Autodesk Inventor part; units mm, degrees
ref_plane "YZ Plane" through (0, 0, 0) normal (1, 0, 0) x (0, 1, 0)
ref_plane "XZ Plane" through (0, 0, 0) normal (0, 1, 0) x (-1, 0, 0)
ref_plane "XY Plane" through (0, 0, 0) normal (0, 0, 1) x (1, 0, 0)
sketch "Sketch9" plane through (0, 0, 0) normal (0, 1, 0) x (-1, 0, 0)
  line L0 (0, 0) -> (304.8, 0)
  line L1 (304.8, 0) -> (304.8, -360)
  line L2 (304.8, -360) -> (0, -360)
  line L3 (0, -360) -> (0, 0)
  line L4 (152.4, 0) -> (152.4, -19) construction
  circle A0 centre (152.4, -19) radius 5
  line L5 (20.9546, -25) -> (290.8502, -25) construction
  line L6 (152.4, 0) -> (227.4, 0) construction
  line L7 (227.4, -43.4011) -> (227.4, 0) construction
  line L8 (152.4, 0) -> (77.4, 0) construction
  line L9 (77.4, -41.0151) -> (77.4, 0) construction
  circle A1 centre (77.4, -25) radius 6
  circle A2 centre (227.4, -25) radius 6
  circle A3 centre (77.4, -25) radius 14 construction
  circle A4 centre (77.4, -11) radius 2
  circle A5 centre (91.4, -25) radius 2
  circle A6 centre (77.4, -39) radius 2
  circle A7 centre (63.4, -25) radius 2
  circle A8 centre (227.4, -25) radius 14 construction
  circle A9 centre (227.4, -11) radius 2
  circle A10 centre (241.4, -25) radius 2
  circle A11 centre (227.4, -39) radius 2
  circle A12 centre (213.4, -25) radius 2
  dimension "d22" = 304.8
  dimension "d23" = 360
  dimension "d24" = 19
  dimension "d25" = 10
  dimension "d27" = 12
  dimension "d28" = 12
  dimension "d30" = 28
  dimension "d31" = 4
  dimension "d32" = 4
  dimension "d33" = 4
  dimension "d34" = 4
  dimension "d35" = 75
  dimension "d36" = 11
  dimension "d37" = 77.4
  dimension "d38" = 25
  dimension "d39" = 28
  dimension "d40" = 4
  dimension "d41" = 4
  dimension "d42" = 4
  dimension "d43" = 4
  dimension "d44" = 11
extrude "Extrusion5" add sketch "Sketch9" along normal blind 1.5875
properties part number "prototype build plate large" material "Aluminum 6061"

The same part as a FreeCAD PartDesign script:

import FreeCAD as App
import Part
import Sketcher

doc = App.newDocument("Part")
params = doc.addObject("Spreadsheet::Sheet", "Params")
for row, (alias, value) in enumerate([
    ("sketch1_diameter", "4 mm"),
    ("sketch1_diameter2", "12 mm"),
    ("sketch1_diameter3", "10 mm"),
    ("sketch1_height", "360 mm"),
    ("sketch1_width", "304.8 mm"),
    ("pad1_length", "1.5875 mm"),
], start=1):
    params.set(f"A{row}", alias)
    params.set(f"B{row}", "=" + value)
    params.setAlias(f"B{row}", alias)

body = doc.addObject("PartDesign::Body", "Body")

sketch1 = body.newObject("Sketcher::SketchObject", "Sketch")
sketch1.AttachmentSupport = (doc.getObject("XZ_Plane"), [""])
sketch1.MapMode = "FlatFace"
sketch1.addGeometry(Part.LineSegment(App.Vector(-304.8, 0, 0), App.Vector(0, 0, 0)), False)
sketch1.addGeometry(Part.LineSegment(App.Vector(0, 0, 0), App.Vector(0, -360, 0)), False)
sketch1.addGeometry(Part.LineSegment(App.Vector(0, -360, 0), App.Vector(-304.8, -360, 0)), False)
sketch1.addGeometry(Part.LineSegment(App.Vector(-304.8, -360, 0), App.Vector(-304.8, 0, 0)), False)
sketch1.addGeometry(Part.Circle(App.Vector(-63.4, -25, 0), App.Vector(0, 0, 1), 2), False)
sketch1.addGeometry(Part.Circle(App.Vector(-77.4, -39, 0), App.Vector(0, 0, 1), 2), False)
sketch1.addGeometry(Part.Circle(App.Vector(-77.4, -25, 0), App.Vector(0, 0, 1), 6), False)
sketch1.addGeometry(Part.Circle(App.Vector(-91.4, -25, 0), App.Vector(0, 0, 1), 2), False)
sketch1.addGeometry(Part.Circle(App.Vector(-77.4, -11, 0), App.Vector(0, 0, 1), 2), False)
sketch1.addGeometry(Part.Circle(App.Vector(-152.4, -19, 0), App.Vector(0, 0, 1), 5), False)
sketch1.addGeometry(Part.Circle(App.Vector(-227.4, -39, 0), App.Vector(0, 0, 1), 2), False)
sketch1.addGeometry(Part.Circle(App.Vector(-213.4, -25, 0), App.Vector(0, 0, 1), 2), False)
sketch1.addGeometry(Part.Circle(App.Vector(-227.4, -25, 0), App.Vector(0, 0, 1), 6), False)
sketch1.addGeometry(Part.Circle(App.Vector(-227.4, -11, 0), App.Vector(0, 0, 1), 2), False)
sketch1.addGeometry(Part.Circle(App.Vector(-241.4, -25, 0), App.Vector(0, 0, 1), 2), False)
sketch1.addConstraint(Sketcher.Constraint("Coincident", 0, 2, 1, 1))
sketch1.addConstraint(Sketcher.Constraint("Coincident", 1, 2, 2, 1))
sketch1.addConstraint(Sketcher.Constraint("Coincident", 2, 2, 3, 1))
sketch1.addConstraint(Sketcher.Constraint("Coincident", 3, 2, 0, 1))
sketch1.addConstraint(Sketcher.Constraint("Horizontal", 0))
sketch1.addConstraint(Sketcher.Constraint("Vertical", 1))
sketch1.addConstraint(Sketcher.Constraint("Horizontal", 2))
sketch1.addConstraint(Sketcher.Constraint("Vertical", 3))
sketch1.addConstraint(Sketcher.Constraint("Coincident", 0, 2, -1, 1))
sketch1.addConstraint(Sketcher.Constraint("Equal", 4, 5))
sketch1.addConstraint(Sketcher.Constraint("Equal", 5, 7))
sketch1.addConstraint(Sketcher.Constraint("Equal", 7, 8))
sketch1.addConstraint(Sketcher.Constraint("Equal", 8, 10))
sketch1.addConstraint(Sketcher.Constraint("Equal", 10, 11))
sketch1.addConstraint(Sketcher.Constraint("Equal", 6, 12))
sketch1.addConstraint(Sketcher.Constraint("Equal", 11, 13))
sketch1.addConstraint(Sketcher.Constraint("Equal", 13, 14))
sketch1.addConstraint(Sketcher.Constraint("Horizontal", 4, 3, 6, 3))
sketch1.addConstraint(Sketcher.Constraint("Horizontal", 6, 3, 7, 3))
sketch1.addConstraint(Sketcher.Constraint("Horizontal", 5, 3, 10, 3))
sketch1.addConstraint(Sketcher.Constraint("Horizontal", 7, 3, 11, 3))
sketch1.addConstraint(Sketcher.Constraint("Horizontal", 11, 3, 12, 3))
sketch1.addConstraint(Sketcher.Constraint("Horizontal", 8, 3, 13, 3))
sketch1.addConstraint(Sketcher.Constraint("Horizontal", 12, 3, 14, 3))
sketch1.addConstraint(Sketcher.Constraint("Vertical", 5, 3, 6, 3))
sketch1.addConstraint(Sketcher.Constraint("Vertical", 6, 3, 8, 3))
sketch1.addConstraint(Sketcher.Constraint("Vertical", 10, 3, 12, 3))
sketch1.addConstraint(Sketcher.Constraint("Vertical", 12, 3, 13, 3))
sketch1.addConstraint(Sketcher.Constraint("Diameter", 4, 4.0))
sketch1.addConstraint(Sketcher.Constraint("Diameter", 6, 12.0))
sketch1.addConstraint(Sketcher.Constraint("Diameter", 9, 10.0))
sketch1.addConstraint(Sketcher.Constraint("DistanceY", 1, 2, 1, 1, 360.0))
sketch1.addConstraint(Sketcher.Constraint("DistanceX", 0, 1, 0, 2, 304.8))
sketch1.addConstraint(Sketcher.Constraint("DistanceY", 4, 3, -1, 1, 25.0))
sketch1.addConstraint(Sketcher.Constraint("DistanceY", 8, 3, -1, 1, 11.0))
sketch1.addConstraint(Sketcher.Constraint("DistanceY", 9, 3, -1, 1, 19.0))
sketch1.addConstraint(Sketcher.Constraint("DistanceX", 7, 3, 4, 3, 28.0))
sketch1.addConstraint(Sketcher.Constraint("DistanceY", 5, 3, 8, 3, 28.0))
sketch1.addConstraint(Sketcher.Constraint("DistanceX", 9, 3, 6, 3, 75.0))
sketch1.addConstraint(Sketcher.Constraint("DistanceX", 10, 3, 9, 3, 75.0))
sketch1.addConstraint(Sketcher.Constraint("DistanceX", 14, 3, 11, 3, 28.0))
sketch1.addConstraint(Sketcher.Constraint("DistanceX", 5, 3, -1, 1, 77.4))
sketch1.addConstraint(Sketcher.Constraint("DistanceX", 5, 3, 4, 3, 14.0))
sketch1.addConstraint(Sketcher.Constraint("DistanceX", 10, 3, 11, 3, 14.0))
sketch1.setExpression("Constraints[28]", "Params.sketch1_diameter")
sketch1.setExpression("Constraints[29]", "Params.sketch1_diameter2")
sketch1.setExpression("Constraints[30]", "Params.sketch1_diameter3")
sketch1.setExpression("Constraints[31]", "Params.sketch1_height")
sketch1.setExpression("Constraints[32]", "Params.sketch1_width")
pad1 = body.newObject("PartDesign::Pad", "Pad")
pad1.Profile = sketch1
pad1.setExpression("Length", "Params.pad1_length")
pad1.Reversed = True

doc.recompute()
